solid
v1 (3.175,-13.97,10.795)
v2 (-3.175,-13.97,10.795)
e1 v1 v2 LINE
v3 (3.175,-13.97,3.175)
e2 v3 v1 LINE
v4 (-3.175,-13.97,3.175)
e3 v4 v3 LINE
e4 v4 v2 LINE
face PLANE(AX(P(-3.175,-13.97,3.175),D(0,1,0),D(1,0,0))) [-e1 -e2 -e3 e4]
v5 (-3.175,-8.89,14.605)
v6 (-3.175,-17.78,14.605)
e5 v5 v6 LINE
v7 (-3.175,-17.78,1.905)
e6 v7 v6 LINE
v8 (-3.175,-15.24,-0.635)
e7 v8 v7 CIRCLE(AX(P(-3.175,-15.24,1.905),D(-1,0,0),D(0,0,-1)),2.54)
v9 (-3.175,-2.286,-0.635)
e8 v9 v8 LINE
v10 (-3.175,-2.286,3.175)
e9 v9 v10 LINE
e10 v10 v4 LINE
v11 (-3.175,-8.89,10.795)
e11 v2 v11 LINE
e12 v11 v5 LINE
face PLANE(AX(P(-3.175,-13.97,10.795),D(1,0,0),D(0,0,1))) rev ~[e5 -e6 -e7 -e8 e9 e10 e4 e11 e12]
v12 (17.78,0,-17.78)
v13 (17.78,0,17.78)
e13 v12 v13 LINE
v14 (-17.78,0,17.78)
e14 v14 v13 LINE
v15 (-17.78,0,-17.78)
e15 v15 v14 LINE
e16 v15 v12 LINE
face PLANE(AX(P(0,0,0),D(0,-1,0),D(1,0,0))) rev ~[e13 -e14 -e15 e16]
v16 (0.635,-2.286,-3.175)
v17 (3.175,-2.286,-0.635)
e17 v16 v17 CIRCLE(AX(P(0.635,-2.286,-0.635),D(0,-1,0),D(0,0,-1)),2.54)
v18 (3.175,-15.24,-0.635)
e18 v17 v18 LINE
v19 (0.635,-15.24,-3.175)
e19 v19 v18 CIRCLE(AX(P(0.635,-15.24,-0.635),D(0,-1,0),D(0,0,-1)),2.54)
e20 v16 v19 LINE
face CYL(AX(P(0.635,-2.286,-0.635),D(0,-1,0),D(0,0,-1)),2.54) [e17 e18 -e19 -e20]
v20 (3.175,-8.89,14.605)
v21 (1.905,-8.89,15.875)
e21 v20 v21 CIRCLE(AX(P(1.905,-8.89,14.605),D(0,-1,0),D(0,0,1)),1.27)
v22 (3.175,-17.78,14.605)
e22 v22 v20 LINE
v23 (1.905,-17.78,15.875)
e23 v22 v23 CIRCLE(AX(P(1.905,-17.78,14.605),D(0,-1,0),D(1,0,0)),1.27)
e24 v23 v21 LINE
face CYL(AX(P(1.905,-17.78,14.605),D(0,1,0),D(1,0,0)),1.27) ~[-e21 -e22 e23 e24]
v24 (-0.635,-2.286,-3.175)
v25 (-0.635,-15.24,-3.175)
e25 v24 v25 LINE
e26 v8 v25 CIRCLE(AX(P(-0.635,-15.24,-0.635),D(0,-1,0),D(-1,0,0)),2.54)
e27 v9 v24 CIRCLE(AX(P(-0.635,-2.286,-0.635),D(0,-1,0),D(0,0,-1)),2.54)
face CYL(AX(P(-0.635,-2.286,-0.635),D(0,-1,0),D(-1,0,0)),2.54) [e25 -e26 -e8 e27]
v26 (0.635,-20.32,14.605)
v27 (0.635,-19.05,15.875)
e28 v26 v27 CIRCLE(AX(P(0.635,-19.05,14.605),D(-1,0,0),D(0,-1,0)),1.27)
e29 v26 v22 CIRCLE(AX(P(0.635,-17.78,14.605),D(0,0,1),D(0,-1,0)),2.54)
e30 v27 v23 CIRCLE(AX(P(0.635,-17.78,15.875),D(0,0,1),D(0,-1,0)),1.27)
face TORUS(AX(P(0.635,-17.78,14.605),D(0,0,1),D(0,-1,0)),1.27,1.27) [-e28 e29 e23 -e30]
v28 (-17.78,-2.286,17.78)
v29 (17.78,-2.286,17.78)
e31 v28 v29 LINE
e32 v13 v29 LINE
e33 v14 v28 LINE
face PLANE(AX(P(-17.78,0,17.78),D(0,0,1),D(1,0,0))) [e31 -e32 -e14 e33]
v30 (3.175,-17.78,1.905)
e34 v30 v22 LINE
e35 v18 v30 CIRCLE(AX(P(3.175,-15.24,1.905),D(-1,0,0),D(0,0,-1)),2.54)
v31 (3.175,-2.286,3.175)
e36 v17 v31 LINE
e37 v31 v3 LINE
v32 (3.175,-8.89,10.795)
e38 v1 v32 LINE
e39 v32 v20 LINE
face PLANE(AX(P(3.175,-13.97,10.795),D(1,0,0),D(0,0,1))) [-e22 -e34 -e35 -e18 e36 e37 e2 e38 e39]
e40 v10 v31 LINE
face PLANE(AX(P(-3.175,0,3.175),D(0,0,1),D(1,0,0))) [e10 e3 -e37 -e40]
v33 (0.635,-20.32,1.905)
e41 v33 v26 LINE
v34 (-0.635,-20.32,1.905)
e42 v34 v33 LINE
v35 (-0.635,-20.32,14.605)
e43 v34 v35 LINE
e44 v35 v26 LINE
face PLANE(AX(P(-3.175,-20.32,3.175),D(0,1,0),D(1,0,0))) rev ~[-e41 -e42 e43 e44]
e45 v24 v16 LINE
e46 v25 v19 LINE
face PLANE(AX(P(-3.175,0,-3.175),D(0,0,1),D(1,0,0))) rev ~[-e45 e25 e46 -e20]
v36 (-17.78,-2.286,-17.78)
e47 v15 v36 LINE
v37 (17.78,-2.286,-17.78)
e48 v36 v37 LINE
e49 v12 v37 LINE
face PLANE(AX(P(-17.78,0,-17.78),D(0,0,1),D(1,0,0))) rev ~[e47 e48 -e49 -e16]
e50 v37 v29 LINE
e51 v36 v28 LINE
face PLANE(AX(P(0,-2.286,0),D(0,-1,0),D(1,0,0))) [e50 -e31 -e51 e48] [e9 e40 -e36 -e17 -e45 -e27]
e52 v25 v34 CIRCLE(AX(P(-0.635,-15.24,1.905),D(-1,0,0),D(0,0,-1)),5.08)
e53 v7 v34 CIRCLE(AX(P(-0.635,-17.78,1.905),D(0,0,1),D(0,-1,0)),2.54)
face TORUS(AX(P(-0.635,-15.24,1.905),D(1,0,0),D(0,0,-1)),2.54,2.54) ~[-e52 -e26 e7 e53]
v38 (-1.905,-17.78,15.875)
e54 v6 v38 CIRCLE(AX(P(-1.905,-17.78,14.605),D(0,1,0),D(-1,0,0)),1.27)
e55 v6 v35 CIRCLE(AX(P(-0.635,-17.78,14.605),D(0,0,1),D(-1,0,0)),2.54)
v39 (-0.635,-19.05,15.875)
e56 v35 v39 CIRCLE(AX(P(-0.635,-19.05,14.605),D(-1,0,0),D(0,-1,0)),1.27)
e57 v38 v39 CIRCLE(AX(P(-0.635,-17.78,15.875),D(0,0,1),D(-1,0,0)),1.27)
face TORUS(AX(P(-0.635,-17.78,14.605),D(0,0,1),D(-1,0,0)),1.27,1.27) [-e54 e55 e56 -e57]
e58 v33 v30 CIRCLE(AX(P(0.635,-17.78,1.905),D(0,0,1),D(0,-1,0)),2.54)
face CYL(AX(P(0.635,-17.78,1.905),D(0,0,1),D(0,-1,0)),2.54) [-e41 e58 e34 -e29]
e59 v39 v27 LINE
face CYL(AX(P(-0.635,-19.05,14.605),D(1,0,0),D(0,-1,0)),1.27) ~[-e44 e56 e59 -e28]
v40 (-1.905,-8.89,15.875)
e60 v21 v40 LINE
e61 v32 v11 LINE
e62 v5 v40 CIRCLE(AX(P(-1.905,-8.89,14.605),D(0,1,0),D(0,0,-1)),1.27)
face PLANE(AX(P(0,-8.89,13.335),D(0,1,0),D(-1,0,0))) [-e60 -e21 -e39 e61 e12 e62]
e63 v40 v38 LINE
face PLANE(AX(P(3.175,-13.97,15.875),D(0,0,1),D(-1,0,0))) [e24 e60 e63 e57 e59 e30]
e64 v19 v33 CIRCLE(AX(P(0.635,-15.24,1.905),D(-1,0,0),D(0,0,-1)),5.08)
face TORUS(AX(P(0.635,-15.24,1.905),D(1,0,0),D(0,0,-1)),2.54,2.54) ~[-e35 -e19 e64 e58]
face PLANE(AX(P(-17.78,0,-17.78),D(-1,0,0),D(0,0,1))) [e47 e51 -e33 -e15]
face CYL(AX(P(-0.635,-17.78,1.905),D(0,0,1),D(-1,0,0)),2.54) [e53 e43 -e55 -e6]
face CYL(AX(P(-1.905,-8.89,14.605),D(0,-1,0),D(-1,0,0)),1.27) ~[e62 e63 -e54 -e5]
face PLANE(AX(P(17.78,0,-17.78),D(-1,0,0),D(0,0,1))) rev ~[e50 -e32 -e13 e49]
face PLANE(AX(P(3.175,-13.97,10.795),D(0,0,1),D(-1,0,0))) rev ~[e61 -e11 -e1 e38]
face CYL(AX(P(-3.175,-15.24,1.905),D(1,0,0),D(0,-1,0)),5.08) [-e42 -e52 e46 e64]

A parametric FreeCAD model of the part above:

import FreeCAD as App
import Part
import Sketcher

V = App.Vector
Q = App.Units.Quantity


def edges_at(feature, points):
    """Names of the edges that pass closest to the given points."""
    edges = feature.Shape.Edges
    near = lambda p: min(range(len(edges)), key=lambda i: edges[i].distToShape(Part.Vertex(*p))[0])
    return sorted({f"Edge{near(p) + 1}" for p in points})

doc = App.newDocument("Part")
body = doc.addObject("PartDesign::Body", "Body")

# Sketch on XZ plane
sketch1 = body.newObject("Sketcher::SketchObject", "Sketch")
sketch1.AttachmentSupport = (doc.getObject("XZ_Plane"), [""])
sketch1.MapMode = "FlatFace"
sketch1.addGeometry(Part.LineSegment(V(-17.78, 17.78, 0), V(-17.78, -17.78, 0)), False)
sketch1.addGeometry(Part.LineSegment(V(-17.78, -17.78, 0), V(17.78, -17.78, 0)), False)
sketch1.addGeometry(Part.LineSegment(V(17.78, -17.78, 0), V(17.78, 17.78, 0)), False)
sketch1.addGeometry(Part.LineSegment(V(17.78, 17.78, 0), V(-17.78, 17.78, 0)), False)
sketch1.addGeometry(Part.LineSegment(V(3.175, -3.175, 0), V(-3.175, -3.175, 0)), False)
sketch1.addGeometry(Part.LineSegment(V(-3.175, -3.175, 0), V(-3.175, 3.175, 0)), False)
sketch1.addGeometry(Part.LineSegment(V(-3.175, 3.175, 0), V(3.175, 3.175, 0)), False)
sketch1.addGeometry(Part.LineSegment(V(3.175, 3.175, 0), V(3.175, -3.175, 0)), False)
sketch1.addConstraint(Sketcher.Constraint("Coincident", 0, 2, 1, 1))
sketch1.addConstraint(Sketcher.Constraint("Coincident", 1, 2, 2, 1))
sketch1.addConstraint(Sketcher.Constraint("Coincident", 2, 2, 3, 1))
sketch1.addConstraint(Sketcher.Constraint("Coincident", 3, 2, 0, 1))
sketch1.addConstraint(Sketcher.Constraint("Coincident", 4, 2, 5, 1))
sketch1.addConstraint(Sketcher.Constraint("Coincident", 5, 2, 6, 1))
sketch1.addConstraint(Sketcher.Constraint("Coincident", 6, 2, 7, 1))
sketch1.addConstraint(Sketcher.Constraint("Coincident", 7, 2, 4, 1))
sketch1.addConstraint(Sketcher.Constraint("Vertical", 0))
sketch1.addConstraint(Sketcher.Constraint("Horizontal", 1))
sketch1.addConstraint(Sketcher.Constraint("Vertical", 2))
sketch1.addConstraint(Sketcher.Constraint("Horizontal", 3))
sketch1.addConstraint(Sketcher.Constraint("Horizontal", 4))
sketch1.addConstraint(Sketcher.Constraint("Vertical", 5))
sketch1.addConstraint(Sketcher.Constraint("Horizontal", 6))
sketch1.addConstraint(Sketcher.Constraint("Vertical", 7))
sketch1.addConstraint(Sketcher.Constraint("Symmetric", 0, 2, 2, 2, -1, 1))
sketch1.addConstraint(Sketcher.Constraint("Symmetric", 4, 2, 6, 2, -1, 1))
sketch1.addConstraint(Sketcher.Constraint("Equal", 3, 0))
sketch1.addConstraint(Sketcher.Constraint("Equal", 6, 5))
sketch1.addConstraint(Sketcher.Constraint("DistanceX", 1, 1, 1, 2, Q("1.4 in")))
sketch1.addConstraint(Sketcher.Constraint("DistanceX", 4, 2, 4, 1, Q("0.25 in")))
pad1 = body.newObject("PartDesign::Pad", "Pad")
pad1.Profile = sketch1
pad1.Length = Q("0.09 in")

# Sketch on XZ plane
sketch2 = body.newObject("Sketcher::SketchObject", "Sketch001")
sketch2.AttachmentSupport = (doc.getObject("XZ_Plane"), [""])
sketch2.MapMode = "FlatFace"
sketch2.addGeometry(Part.LineSegment(V(-3.175, 3.175, 0), V(-3.175, -3.175, 0)), False)
sketch2.addGeometry(Part.LineSegment(V(-3.175, -3.175, 0), V(3.175, -3.175, 0)), False)
sketch2.addGeometry(Part.LineSegment(V(3.175, -3.175, 0), V(3.175, 3.175, 0)), False)
sketch2.addGeometry(Part.LineSegment(V(3.175, 3.175, 0), V(-3.175, 3.175, 0)), False)
sketch2.addConstraint(Sketcher.Constraint("Coincident", 0, 2, 1, 1))
sketch2.addConstraint(Sketcher.Constraint("Coincident", 1, 2, 2, 1))
sketch2.addConstraint(Sketcher.Constraint("Coincident", 2, 2, 3, 1))
sketch2.addConstraint(Sketcher.Constraint("Coincident", 3, 2, 0, 1))
sketch2.addConstraint(Sketcher.Constraint("Vertical", 0))
sketch2.addConstraint(Sketcher.Constraint("Horizontal", 1))
sketch2.addConstraint(Sketcher.Constraint("Vertical", 2))
sketch2.addConstraint(Sketcher.Constraint("Horizontal", 3))
sketch2.addConstraint(Sketcher.Constraint("Symmetric", 0, 2, 2, 2, -1, 1))
sketch2.addConstraint(Sketcher.Constraint("Equal", 3, 0))
sketch2.addConstraint(Sketcher.Constraint("DistanceX", 1, 1, 1, 2, Q("0.25 in")))
pad2 = body.newObject("PartDesign::Pad", "Pad001")
pad2.Profile = sketch2
pad2.Length = Q("0.8 in")

# Sketch on XY plane
sketch3 = body.newObject("Sketcher::SketchObject", "Sketch002")
sketch3.AttachmentSupport = (doc.getObject("XY_Plane"), [""])
sketch3.MapMode = "FlatFace"
sketch3.AttachmentOffset = App.Placement(V(0, 0, 0.125 * 25.4), App.Rotation())
sketch3.addGeometry(Part.LineSegment(V(-3.175, -13.97, 0), V(-3.175, -20.32, 0)), False)
sketch3.addGeometry(Part.LineSegment(V(-3.175, -20.32, 0), V(3.175, -20.32, 0)), False)
sketch3.addGeometry(Part.LineSegment(V(3.175, -20.32, 0), V(3.175, -13.97, 0)), False)
sketch3.addGeometry(Part.LineSegment(V(3.175, -13.97, 0), V(-3.175, -13.97, 0)), False)
sketch3.addConstraint(Sketcher.Constraint("Coincident", 0, 2, 1, 1))
sketch3.addConstraint(Sketcher.Constraint("Coincident", 1, 2, 2, 1))
sketch3.addConstraint(Sketcher.Constraint("Coincident", 2, 2, 3, 1))
sketch3.addConstraint(Sketcher.Constraint("Coincident", 3, 2, 0, 1))
sketch3.addConstraint(Sketcher.Constraint("Vertical", 0))
sketch3.addConstraint(Sketcher.Constraint("Horizontal", 1))
sketch3.addConstraint(Sketcher.Constraint("Vertical", 2))
sketch3.addConstraint(Sketcher.Constraint("Horizontal", 3))
sketch3.addConstraint(Sketcher.Constraint("Equal", 3, 0))
sketch3.addConstraint(Sketcher.Constraint("DistanceX", 1, 1, 1, 2, Q("0.25 in")))
sketch3.addConstraint(Sketcher.Constraint("DistanceY", 0, 2, -1, 1, Q("0.8 in")))
sketch3.addConstraint(Sketcher.Constraint("DistanceX", 0, 2, -1, 1, Q("0.125 in")))
pad3 = body.newObject("PartDesign::Pad", "Pad002")
pad3.Profile = sketch3
pad3.Length = Q("0.5 in")
doc.recompute()

fillet = body.newObject("PartDesign::Fillet", "Fillet")
fillet.Base = (pad3, edges_at(pad3, [(0, -20.32, -3.175)]))
fillet.Radius = Q("0.2 in")
doc.recompute()

fillet2 = body.newObject("PartDesign::Fillet", "Fillet001")
fillet2.Base = (fillet, edges_at(fillet, [(3.175, -20.32, 8.89), (-3.175, -20.32, 8.89)]))
fillet2.Radius = Q("0.1 in")

# Sketch on XZ plane
sketch4 = body.newObject("Sketcher::SketchObject", "Sketch003")
sketch4.AttachmentSupport = (doc.getObject("XZ_Plane"), [""])
sketch4.MapMode = "FlatFace"
sketch4.AttachmentOffset = App.Placement(V(0, 0, 0.55 * 25.4), App.Rotation())
sketch4.addGeometry(Part.LineSegment(V(3.175, 15.875, 0), V(3.175, 10.795, 0)), False)
sketch4.addGeometry(Part.LineSegment(V(3.175, 10.795, 0), V(-3.175, 10.795, 0)), False)
sketch4.addGeometry(Part.LineSegment(V(-3.175, 10.795, 0), V(-3.175, 15.875, 0)), False)
sketch4.addGeometry(Part.LineSegment(V(-3.175, 15.875, 0), V(3.175, 15.875, 0)), False)
sketch4.addConstraint(Sketcher.Constraint("Coincident", 0, 2, 1, 1))
sketch4.addConstraint(Sketcher.Constraint("Coincident", 1, 2, 2, 1))
sketch4.addConstraint(Sketcher.Constraint("Coincident", 2, 2, 3, 1))
sketch4.addConstraint(Sketcher.Constraint("Coincident", 3, 2, 0, 1))
sketch4.addConstraint(Sketcher.Constraint("Vertical", 0))
sketch4.addConstraint(Sketcher.Constraint("Horizontal", 1))
sketch4.addConstraint(Sketcher.Constraint("Vertical", 2))
sketch4.addConstraint(Sketcher.Constraint("Horizontal", 3))
sketch4.addConstraint(Sketcher.Constraint("DistanceY", 0, 2, 0, 1, Q("0.2 in")))
sketch4.addConstraint(Sketcher.Constraint("DistanceX", 1, 2, 1, 1, Q("0.25 in")))
sketch4.addConstraint(Sketcher.Constraint("DistanceX", -1, 1, 0, 2, Q("0.125 in")))
sketch4.addConstraint(Sketcher.Constraint("DistanceY", -1, 1, 0, 2, Q("0.425 in")))
pad4 = body.newObject("PartDesign::Pad", "Pad003")
pad4.Profile = sketch4
pad4.Length = Q("0.2 in")
pad4.Reversed = True
doc.recompute()

fillet3 = body.newObject("PartDesign::Fillet", "Fillet002")
fillet3.Base = (pad4, edges_at(pad4, [(2.431, -19.576, 15.875), (0, -20.32, 15.875), (-2.431, -19.576, 15.875)]))
fillet3.Radius = Q("0.05 in")

doc.recompute()
